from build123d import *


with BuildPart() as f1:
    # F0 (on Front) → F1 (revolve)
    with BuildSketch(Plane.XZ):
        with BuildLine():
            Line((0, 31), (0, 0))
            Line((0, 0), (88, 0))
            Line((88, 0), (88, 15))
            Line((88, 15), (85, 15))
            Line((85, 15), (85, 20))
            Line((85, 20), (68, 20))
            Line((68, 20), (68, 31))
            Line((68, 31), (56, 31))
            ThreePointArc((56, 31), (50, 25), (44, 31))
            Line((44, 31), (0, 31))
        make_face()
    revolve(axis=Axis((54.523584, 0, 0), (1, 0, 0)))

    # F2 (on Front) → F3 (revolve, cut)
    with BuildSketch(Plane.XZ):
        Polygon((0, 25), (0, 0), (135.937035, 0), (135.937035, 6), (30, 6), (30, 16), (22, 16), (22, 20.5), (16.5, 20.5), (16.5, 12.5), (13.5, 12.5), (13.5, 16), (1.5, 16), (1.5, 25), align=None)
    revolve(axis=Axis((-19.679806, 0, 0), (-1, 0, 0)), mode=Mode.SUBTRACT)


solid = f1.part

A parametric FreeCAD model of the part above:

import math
import FreeCAD as App
import Part
import Sketcher
from FreeCAD import Vector


def add_polygon(sketch, points):
    """Adds a closed chain of lines whose ends are joined by coincident constraints."""
    first, n = sketch.GeometryCount, len(points)
    for a, b in zip(points, points[1:] + points[:1]):
        sketch.addGeometry(Part.LineSegment(App.Vector(*a, 0), App.Vector(*b, 0)), False)
    for i in range(n):
        sketch.addConstraint(Sketcher.Constraint("Coincident", first + i, 2, first + (i + 1) % n, 1))

doc = App.newDocument("Part")
body = doc.addObject("PartDesign::Body", "Body")

sketch1 = body.newObject("Sketcher::SketchObject", "Sketch")
sketch1.AttachmentSupport = (doc.getObject("XZ_Plane"), [""])
sketch1.MapMode = "FlatFace"
sketch1.addGeometry([
    Part.LineSegment(Vector(0, 31, 0), Vector(0, 0, 0)),
    Part.LineSegment(Vector(0, 0, 0), Vector(88, 0, 0)),
    Part.LineSegment(Vector(88, 0, 0), Vector(88, 15, 0)),
    Part.LineSegment(Vector(88, 15, 0), Vector(85, 15, 0)),
    Part.LineSegment(Vector(85, 15, 0), Vector(85, 20, 0)),
    Part.LineSegment(Vector(85, 20, 0), Vector(68, 20, 0)),
    Part.LineSegment(Vector(68, 20, 0), Vector(68, 31, 0)),
    Part.LineSegment(Vector(68, 31, 0), Vector(56, 31, 0)),
    Part.ArcOfCircle(Part.Circle(Vector(50, 31, 0), Vector(0, 0, 1), 6), math.radians(180), math.radians(360)),
    Part.LineSegment(Vector(44, 31, 0), Vector(0, 31, 0)),
], False)
sketch1.addConstraint([
    Sketcher.Constraint("Coincident", 0, 2, 1, 1),
    Sketcher.Constraint("Coincident", 1, 2, 2, 1),
    Sketcher.Constraint("Coincident", 2, 2, 3, 1),
    Sketcher.Constraint("Coincident", 3, 2, 4, 1),
    Sketcher.Constraint("Coincident", 4, 2, 5, 1),
    Sketcher.Constraint("Coincident", 5, 2, 6, 1),
    Sketcher.Constraint("Coincident", 6, 2, 7, 1),
    Sketcher.Constraint("Coincident", 7, 2, 8, 2),
    Sketcher.Constraint("Coincident", 8, 1, 9, 1),
    Sketcher.Constraint("Coincident", 9, 2, 0, 1),
    Sketcher.Constraint("Vertical", 0),
    Sketcher.Constraint("Horizontal", 1),
    Sketcher.Constraint("Vertical", 2),
    Sketcher.Constraint("Horizontal", 3),
    Sketcher.Constraint("Vertical", 4),
    Sketcher.Constraint("Horizontal", 5),
    Sketcher.Constraint("Vertical", 6),
    Sketcher.Constraint("Horizontal", 7),
    Sketcher.Constraint("Horizontal", 9),
    Sketcher.Constraint("Coincident", 0, 2, -1, 1),
    Sketcher.Constraint("Horizontal", 8, 3, 6, 2),
    Sketcher.Constraint("Horizontal", 7, 2, 8, 1),
    Sketcher.Constraint("Radius", 8, 6.0),
    Sketcher.Constraint("DistanceX", 1, 1, 1, 2, 88.0),
    Sketcher.Constraint("DistanceX", 3, 2, 3, 1, 3.0),
    Sketcher.Constraint("DistanceX", 5, 2, 5, 1, 17.0),
    Sketcher.Constraint("DistanceX", 7, 2, 7, 1, 12.0),
    Sketcher.Constraint("DistanceY", 0, 2, 0, 1, 31.0),
    Sketcher.Constraint("DistanceY", 2, 1, 2, 2, 15.0),
    Sketcher.Constraint("DistanceY", 4, 1, 4, 2, 5.0),
])
revolution = body.newObject("PartDesign::Revolution", "Revolution")
revolution.Profile = sketch1
revolution.ReferenceAxis = (sketch1, ["H_Axis"])
revolution.Angle = 360

sketch2 = body.newObject("Sketcher::SketchObject", "Sketch001")
sketch2.AttachmentSupport = (doc.getObject("XZ_Plane"), [""])
sketch2.MapMode = "FlatFace"
add_polygon(sketch2, [(0, 25), (0, 0), (135.937035, 0), (135.937035, 6), (30, 6), (30, 16), (22, 16), (22, 20.5), (16.5, 20.5), (16.5, 12.5), (13.5, 12.5), (13.5, 16), (1.5, 16), (1.5, 25)])
sketch2.addConstraint([
    Sketcher.Constraint("Vertical", 0),
    Sketcher.Constraint("Horizontal", 1),
    Sketcher.Constraint("Vertical", 2),
    Sketcher.Constraint("Horizontal", 3),
    Sketcher.Constraint("Vertical", 4),
    Sketcher.Constraint("Horizontal", 5),
    Sketcher.Constraint("Vertical", 6),
    Sketcher.Constraint("Horizontal", 7),
    Sketcher.Constraint("Vertical", 8),
    Sketcher.Constraint("Horizontal", 9),
    Sketcher.Constraint("Vertical", 10),
    Sketcher.Constraint("Horizontal", 11),
    Sketcher.Constraint("Vertical", 12),
    Sketcher.Constraint("Horizontal", 13),
    Sketcher.Constraint("Coincident", 0, 2, -1, 1),
    Sketcher.Constraint("Horizontal", 5, 2, 10, 2),
    Sketcher.Constraint("Equal", 5, 8),
    Sketcher.Constraint("DistanceX", 5, 2, 5, 1, 8.0),
    Sketcher.Constraint("DistanceX", 9, 2, 9, 1, 3.0),
    Sketcher.Constraint("DistanceX", 11, 2, 11, 1, 12.0),
    Sketcher.Constraint("DistanceY", 0, 2, 0, 1, 25.0),
    Sketcher.Constraint("DistanceY", 2, 1, 2, 2, 6.0),
    Sketcher.Constraint("DistanceY", 4, 1, 4, 2, 10.0),
    Sketcher.Constraint("DistanceX", 7, 2, 7, 1, 5.5),
    Sketcher.Constraint("DistanceX", 13, 2, 13, 1, 1.5),
    Sketcher.Constraint("DistanceY", 6, 1, 6, 2, 4.5),
    Sketcher.Constraint("DistanceX", 1, 1, 1, 2, 135.937035),
])
groove = body.newObject("PartDesign::Groove", "Groove")
groove.Profile = sketch2
groove.ReferenceAxis = (sketch2, ["H_Axis"])
groove.Angle = 360

doc.recompute()
